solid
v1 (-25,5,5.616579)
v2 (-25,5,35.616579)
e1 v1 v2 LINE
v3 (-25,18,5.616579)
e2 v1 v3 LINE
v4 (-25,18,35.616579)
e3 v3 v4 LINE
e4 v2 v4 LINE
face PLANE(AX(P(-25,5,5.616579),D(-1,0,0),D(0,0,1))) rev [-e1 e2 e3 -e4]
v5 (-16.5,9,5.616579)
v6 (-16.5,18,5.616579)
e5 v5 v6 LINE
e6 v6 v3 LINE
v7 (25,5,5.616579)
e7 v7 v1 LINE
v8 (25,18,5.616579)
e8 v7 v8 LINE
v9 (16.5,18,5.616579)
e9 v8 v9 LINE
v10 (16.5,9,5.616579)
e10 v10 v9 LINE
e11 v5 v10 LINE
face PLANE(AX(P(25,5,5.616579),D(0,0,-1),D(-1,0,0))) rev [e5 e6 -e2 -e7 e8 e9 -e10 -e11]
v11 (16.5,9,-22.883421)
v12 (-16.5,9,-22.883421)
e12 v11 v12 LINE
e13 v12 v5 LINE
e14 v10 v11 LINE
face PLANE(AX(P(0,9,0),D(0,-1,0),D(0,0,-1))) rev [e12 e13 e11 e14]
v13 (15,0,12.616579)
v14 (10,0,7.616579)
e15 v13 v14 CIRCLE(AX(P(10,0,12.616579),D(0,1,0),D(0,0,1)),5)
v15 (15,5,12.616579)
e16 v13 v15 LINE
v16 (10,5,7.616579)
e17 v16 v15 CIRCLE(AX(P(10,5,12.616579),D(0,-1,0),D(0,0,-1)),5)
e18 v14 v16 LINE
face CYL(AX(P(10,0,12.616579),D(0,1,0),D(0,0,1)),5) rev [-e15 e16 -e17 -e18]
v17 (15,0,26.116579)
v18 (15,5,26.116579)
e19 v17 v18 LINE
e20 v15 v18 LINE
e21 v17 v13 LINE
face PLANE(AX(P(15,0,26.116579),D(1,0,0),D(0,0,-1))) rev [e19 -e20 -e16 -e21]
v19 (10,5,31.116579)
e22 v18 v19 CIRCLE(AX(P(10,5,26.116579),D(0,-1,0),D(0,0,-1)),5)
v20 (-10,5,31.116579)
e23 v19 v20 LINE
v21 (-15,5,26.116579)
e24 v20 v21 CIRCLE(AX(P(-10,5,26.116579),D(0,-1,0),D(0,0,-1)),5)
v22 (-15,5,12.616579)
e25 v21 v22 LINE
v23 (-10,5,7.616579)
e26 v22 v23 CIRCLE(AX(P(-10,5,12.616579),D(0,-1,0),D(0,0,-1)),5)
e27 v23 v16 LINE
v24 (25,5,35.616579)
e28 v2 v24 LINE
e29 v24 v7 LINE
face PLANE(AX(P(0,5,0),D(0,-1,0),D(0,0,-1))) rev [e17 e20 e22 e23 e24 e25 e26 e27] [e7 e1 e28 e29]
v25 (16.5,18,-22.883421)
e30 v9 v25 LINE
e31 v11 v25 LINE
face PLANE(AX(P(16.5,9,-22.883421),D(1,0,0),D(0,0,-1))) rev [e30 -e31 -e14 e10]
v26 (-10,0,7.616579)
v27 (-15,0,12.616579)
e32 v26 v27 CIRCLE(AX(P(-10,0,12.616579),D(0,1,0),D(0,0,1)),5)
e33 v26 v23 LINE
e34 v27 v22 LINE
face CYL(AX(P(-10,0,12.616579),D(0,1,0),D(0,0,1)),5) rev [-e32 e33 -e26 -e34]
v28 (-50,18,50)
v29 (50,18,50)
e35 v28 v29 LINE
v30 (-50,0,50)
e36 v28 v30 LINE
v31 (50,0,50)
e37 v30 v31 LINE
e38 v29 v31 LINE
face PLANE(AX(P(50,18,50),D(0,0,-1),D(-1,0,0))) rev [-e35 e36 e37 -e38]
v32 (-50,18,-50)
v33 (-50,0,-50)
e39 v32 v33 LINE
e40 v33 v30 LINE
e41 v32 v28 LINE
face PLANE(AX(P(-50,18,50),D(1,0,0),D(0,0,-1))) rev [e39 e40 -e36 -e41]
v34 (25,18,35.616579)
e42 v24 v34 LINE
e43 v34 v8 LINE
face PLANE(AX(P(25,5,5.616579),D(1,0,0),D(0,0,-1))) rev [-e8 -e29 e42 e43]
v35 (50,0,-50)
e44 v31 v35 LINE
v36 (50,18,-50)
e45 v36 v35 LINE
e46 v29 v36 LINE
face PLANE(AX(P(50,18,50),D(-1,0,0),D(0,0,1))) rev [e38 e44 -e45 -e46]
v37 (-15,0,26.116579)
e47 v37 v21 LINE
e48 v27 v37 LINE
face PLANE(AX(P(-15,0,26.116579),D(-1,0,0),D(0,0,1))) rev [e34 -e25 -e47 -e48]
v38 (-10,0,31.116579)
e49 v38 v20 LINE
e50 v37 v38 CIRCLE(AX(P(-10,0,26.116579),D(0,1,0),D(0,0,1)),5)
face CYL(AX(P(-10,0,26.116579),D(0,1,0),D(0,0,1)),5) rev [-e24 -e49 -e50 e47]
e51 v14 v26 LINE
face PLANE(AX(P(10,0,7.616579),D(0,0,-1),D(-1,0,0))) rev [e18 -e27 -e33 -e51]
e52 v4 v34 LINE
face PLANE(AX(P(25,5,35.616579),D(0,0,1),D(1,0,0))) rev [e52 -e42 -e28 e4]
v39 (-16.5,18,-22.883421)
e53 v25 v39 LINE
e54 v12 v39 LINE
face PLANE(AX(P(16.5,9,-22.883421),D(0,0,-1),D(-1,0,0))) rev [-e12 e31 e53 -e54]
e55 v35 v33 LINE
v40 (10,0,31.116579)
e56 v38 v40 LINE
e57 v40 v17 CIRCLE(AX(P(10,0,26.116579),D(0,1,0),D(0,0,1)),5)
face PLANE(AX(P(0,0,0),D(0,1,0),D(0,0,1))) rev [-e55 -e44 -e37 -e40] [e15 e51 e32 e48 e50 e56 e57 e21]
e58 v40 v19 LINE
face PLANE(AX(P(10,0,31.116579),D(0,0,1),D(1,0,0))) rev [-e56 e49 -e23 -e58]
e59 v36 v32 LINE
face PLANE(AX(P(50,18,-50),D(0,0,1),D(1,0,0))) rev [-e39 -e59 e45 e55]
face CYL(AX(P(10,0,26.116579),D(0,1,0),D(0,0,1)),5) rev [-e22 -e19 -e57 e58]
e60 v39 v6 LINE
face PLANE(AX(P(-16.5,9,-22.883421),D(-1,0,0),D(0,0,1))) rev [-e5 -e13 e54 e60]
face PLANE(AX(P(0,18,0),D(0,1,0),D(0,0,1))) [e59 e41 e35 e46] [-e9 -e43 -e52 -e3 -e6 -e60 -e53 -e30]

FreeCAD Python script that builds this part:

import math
import FreeCAD as App
import Part
import Sketcher

V = App.Vector

doc = App.newDocument("Part")
body = doc.addObject("PartDesign::Body", "Body")

sketch1 = body.newObject("Sketcher::SketchObject", "Sketch")
sketch1.AttachmentSupport = (doc.getObject("XZ_Plane"), [""])
sketch1.MapMode = "FlatFace"
sketch1.addGeometry(Part.LineSegment(V(-50, -50, 0), V(-50, 50, 0)), False)
sketch1.addGeometry(Part.LineSegment(V(-50, 50, 0), V(50, 50, 0)), False)
sketch1.addGeometry(Part.LineSegment(V(50, 50, 0), V(50, -50, 0)), False)
sketch1.addGeometry(Part.LineSegment(V(50, -50, 0), V(-50, -50, 0)), False)
sketch1.addConstraint(Sketcher.Constraint("Coincident", 0, 2, 1, 1))
sketch1.addConstraint(Sketcher.Constraint("Coincident", 1, 2, 2, 1))
sketch1.addConstraint(Sketcher.Constraint("Coincident", 2, 2, 3, 1))
sketch1.addConstraint(Sketcher.Constraint("Coincident", 3, 2, 0, 1))
sketch1.addConstraint(Sketcher.Constraint("Vertical", 0))
sketch1.addConstraint(Sketcher.Constraint("Horizontal", 1))
sketch1.addConstraint(Sketcher.Constraint("Vertical", 2))
sketch1.addConstraint(Sketcher.Constraint("Horizontal", 3))
sketch1.addConstraint(Sketcher.Constraint("Symmetric", 0, 2, 2, 2, -1, 1))
sketch1.addConstraint(Sketcher.Constraint("Equal", 3, 0))
sketch1.addConstraint(Sketcher.Constraint("DistanceX", 1, 1, 1, 2, 100.0))
pad1 = body.newObject("PartDesign::Pad", "Pad")
pad1.Profile = sketch1
pad1.Length = 18
pad1.Reversed = True

sketch2 = body.newObject("Sketcher::SketchObject", "Sketch001")
sketch2.AttachmentSupport = (doc.getObject("XZ_Plane"), [""])
sketch2.MapMode = "FlatFace"
sketch2.AttachmentOffset = App.Placement(V(0, 0, -18), App.Rotation())
sketch2.addGeometry(Part.LineSegment(V(-25, 6, 0), V(-25, 36, 0)), False)
sketch2.addGeometry(Part.LineSegment(V(-25, 36, 0), V(25, 36, 0)), False)
sketch2.addGeometry(Part.LineSegment(V(25, 36, 0), V(25, 6, 0)), False)
sketch2.addGeometry(Part.LineSegment(V(25, 6, 0), V(-25, 6, 0)), False)
sketch2.addConstraint(Sketcher.Constraint("Coincident", 0, 2, 1, 1))
sketch2.addConstraint(Sketcher.Constraint("Coincident", 1, 2, 2, 1))
sketch2.addConstraint(Sketcher.Constraint("Coincident", 2, 2, 3, 1))
sketch2.addConstraint(Sketcher.Constraint("Coincident", 3, 2, 0, 1))
sketch2.addConstraint(Sketcher.Constraint("Vertical", 0))
sketch2.addConstraint(Sketcher.Constraint("Horizontal", 1))
sketch2.addConstraint(Sketcher.Constraint("Vertical", 2))
sketch2.addConstraint(Sketcher.Constraint("Horizontal", 3))
sketch2.addConstraint(Sketcher.Constraint("DistanceX", 1, 1, 1, 2, 50.0))
sketch2.addConstraint(Sketcher.Constraint("DistanceY", 0, 1, 0, 2, 30.0))
sketch2.addConstraint(Sketcher.Constraint("DistanceX", 0, 2, -1, 1, 25.0))
sketch2.addConstraint(Sketcher.Constraint("DistanceY", -1, 1, 0, 2, 35.616579))
pocket1 = body.newObject("PartDesign::Pocket", "Pocket")
pocket1.Profile = sketch2
pocket1.Length = 13
pocket1.Reversed = True

sketch3 = body.newObject("Sketcher::SketchObject", "Sketch002")
sketch3.AttachmentSupport = (doc.getObject("XZ_Plane"), [""])
sketch3.MapMode = "FlatFace"
sketch3.AttachmentOffset = App.Placement(V(0, 0, -5), App.Rotation())
sketch3.addGeometry(Part.LineSegment(V(-10, 31, 0), V(10, 31, 0)), False)
sketch3.addGeometry(Part.ArcOfCircle(Part.Circle(V(10, 26, 0), V(0, 0, 1), 5), math.radians(0), math.radians(90)), False)
sketch3.addGeometry(Part.LineSegment(V(15, 26, 0), V(15, 13, 0)), False)
sketch3.addGeometry(Part.ArcOfCircle(Part.Circle(V(10, 13, 0), V(0, 0, 1), 5), math.radians(-90), math.radians(0)), False)
sketch3.addGeometry(Part.LineSegment(V(10, 8, 0), V(-10, 8, 0)), False)
sketch3.addGeometry(Part.ArcOfCircle(Part.Circle(V(-10, 13, 0), V(0, 0, 1), 5), math.radians(180), math.radians(270)), False)
sketch3.addGeometry(Part.LineSegment(V(-15, 13, 0), V(-15, 26, 0)), False)
sketch3.addGeometry(Part.ArcOfCircle(Part.Circle(V(-10, 26, 0), V(0, 0, 1), 5), math.radians(90), math.radians(180)), False)
sketch3.addConstraint(Sketcher.Constraint("Tangent", 0, 2, 1, 2))
sketch3.addConstraint(Sketcher.Constraint("Tangent", 1, 1, 2, 1))
sketch3.addConstraint(Sketcher.Constraint("Tangent", 2, 2, 3, 2))
sketch3.addConstraint(Sketcher.Constraint("Tangent", 3, 1, 4, 1))
sketch3.addConstraint(Sketcher.Constraint("Tangent", 4, 2, 5, 2))
sketch3.addConstraint(Sketcher.Constraint("Tangent", 5, 1, 6, 1))
sketch3.addConstraint(Sketcher.Constraint("Tangent", 6, 2, 7, 2))
sketch3.addConstraint(Sketcher.Constraint("Tangent", 7, 1, 0, 1))
sketch3.addConstraint(Sketcher.Constraint("Horizontal", 0))
sketch3.addConstraint(Sketcher.Constraint("Vertical", 2))
sketch3.addConstraint(Sketcher.Constraint("Horizontal", 4))
sketch3.addConstraint(Sketcher.Constraint("Vertical", 6))
sketch3.addConstraint(Sketcher.Constraint("Equal", 1, 3))
sketch3.addConstraint(Sketcher.Constraint("Equal", 3, 5))
sketch3.addConstraint(Sketcher.Constraint("Equal", 5, 7))
sketch3.addConstraint(Sketcher.Constraint("Radius", 1, 5.0))
sketch3.addConstraint(Sketcher.Constraint("DistanceX", 0, 1, 0, 2, 20.0))
sketch3.addConstraint(Sketcher.Constraint("DistanceY", 2, 2, 2, 1, 13.5))
sketch3.addConstraint(Sketcher.Constraint("DistanceX", -1, 1, 1, 3, 10.0))
sketch3.addConstraint(Sketcher.Constraint("DistanceY", -1, 1, 1, 3, 26.116579))
pocket2 = body.newObject("PartDesign::Pocket", "Pocket001")
pocket2.Profile = sketch3
pocket2.Type = "ThroughAll"
pocket2.Midplane = True

sketch4 = body.newObject("Sketcher::SketchObject", "Sketch003")
sketch4.AttachmentSupport = (doc.getObject("XZ_Plane"), [""])
sketch4.MapMode = "FlatFace"
sketch4.AttachmentOffset = App.Placement(V(0, 0, -18), App.Rotation())
sketch4.addGeometry(Part.LineSegment(V(-16, -23, 0), V(-16, 6, 0)), False)
sketch4.addGeometry(Part.LineSegment(V(-16, 6, 0), V(16, 6, 0)), False)
sketch4.addGeometry(Part.LineSegment(V(16, 6, 0), V(16, -23, 0)), False)
sketch4.addGeometry(Part.LineSegment(V(16, -23, 0), V(-16, -23, 0)), False)
sketch4.addConstraint(Sketcher.Constraint("Coincident", 0, 2, 1, 1))
sketch4.addConstraint(Sketcher.Constraint("Coincident", 1, 2, 2, 1))
sketch4.addConstraint(Sketcher.Constraint("Coincident", 2, 2, 3, 1))
sketch4.addConstraint(Sketcher.Constraint("Coincident", 3, 2, 0, 1))
sketch4.addConstraint(Sketcher.Constraint("Vertical", 0))
sketch4.addConstraint(Sketcher.Constraint("Horizontal", 1))
sketch4.addConstraint(Sketcher.Constraint("Vertical", 2))
sketch4.addConstraint(Sketcher.Constraint("Horizontal", 3))
sketch4.addConstraint(Sketcher.Constraint("DistanceX", 1, 1, 1, 2, 33.0))
sketch4.addConstraint(Sketcher.Constraint("DistanceY", 0, 1, 0, 2, 28.5))
sketch4.addConstraint(Sketcher.Constraint("DistanceX", 0, 2, -1, 1, 16.5))
sketch4.addConstraint(Sketcher.Constraint("DistanceY", -1, 1, 0, 2, 5.616579))
pocket3 = body.newObject("PartDesign::Pocket", "Pocket002")
pocket3.Profile = sketch4
pocket3.Length = 9
pocket3.Reversed = True

doc.recompute()
